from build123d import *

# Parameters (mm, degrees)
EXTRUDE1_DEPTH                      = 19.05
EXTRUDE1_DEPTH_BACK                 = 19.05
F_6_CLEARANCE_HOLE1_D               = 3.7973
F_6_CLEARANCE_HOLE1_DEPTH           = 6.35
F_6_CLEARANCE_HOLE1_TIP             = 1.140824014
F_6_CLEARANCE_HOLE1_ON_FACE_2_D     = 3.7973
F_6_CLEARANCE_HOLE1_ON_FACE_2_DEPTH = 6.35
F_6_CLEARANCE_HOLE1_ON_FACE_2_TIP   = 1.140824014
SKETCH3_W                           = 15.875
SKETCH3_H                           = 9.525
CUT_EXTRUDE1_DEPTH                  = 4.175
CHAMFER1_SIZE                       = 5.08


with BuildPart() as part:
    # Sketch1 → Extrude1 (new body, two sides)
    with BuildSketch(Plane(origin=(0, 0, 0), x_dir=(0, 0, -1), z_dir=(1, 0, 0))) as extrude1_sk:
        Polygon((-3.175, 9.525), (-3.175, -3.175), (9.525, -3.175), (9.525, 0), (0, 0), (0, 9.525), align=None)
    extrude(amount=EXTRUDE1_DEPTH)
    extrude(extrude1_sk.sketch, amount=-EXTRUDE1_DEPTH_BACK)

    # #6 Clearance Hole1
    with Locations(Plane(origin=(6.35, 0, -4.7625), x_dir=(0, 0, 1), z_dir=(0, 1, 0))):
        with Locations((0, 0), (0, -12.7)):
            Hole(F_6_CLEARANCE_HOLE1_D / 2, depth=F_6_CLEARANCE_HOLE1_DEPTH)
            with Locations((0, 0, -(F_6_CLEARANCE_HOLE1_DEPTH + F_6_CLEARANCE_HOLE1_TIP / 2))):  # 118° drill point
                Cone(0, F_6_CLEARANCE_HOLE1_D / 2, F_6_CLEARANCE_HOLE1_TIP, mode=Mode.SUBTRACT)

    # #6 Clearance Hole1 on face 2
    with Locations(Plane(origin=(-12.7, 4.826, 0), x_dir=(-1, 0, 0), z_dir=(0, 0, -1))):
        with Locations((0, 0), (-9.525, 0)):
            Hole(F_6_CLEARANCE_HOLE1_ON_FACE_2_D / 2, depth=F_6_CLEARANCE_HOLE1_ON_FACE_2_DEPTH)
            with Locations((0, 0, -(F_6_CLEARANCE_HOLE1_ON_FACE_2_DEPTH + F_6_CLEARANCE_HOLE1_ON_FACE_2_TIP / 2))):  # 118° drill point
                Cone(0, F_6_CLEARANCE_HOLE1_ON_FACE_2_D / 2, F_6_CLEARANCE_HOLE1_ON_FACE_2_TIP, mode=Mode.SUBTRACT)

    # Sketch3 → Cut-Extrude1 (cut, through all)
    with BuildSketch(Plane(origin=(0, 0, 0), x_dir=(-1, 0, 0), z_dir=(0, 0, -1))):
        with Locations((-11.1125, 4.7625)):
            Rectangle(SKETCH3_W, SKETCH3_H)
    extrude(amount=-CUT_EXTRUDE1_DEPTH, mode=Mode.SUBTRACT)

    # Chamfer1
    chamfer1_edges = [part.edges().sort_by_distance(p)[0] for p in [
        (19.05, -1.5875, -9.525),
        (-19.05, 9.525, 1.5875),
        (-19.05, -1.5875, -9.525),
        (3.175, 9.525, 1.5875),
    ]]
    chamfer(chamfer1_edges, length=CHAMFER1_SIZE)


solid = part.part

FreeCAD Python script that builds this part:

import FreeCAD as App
import Part
import Sketcher
Q = App.Units.Quantity


def edges_at(feature, points):
    """Names of the edges that pass closest to the given points."""
    edges = feature.Shape.Edges
    near = lambda p: min(range(len(edges)), key=lambda i: edges[i].distToShape(Part.Vertex(*p))[0])
    return sorted({f"Edge{near(p) + 1}" for p in points})


def add_polygon(sketch, points):
    """Adds a closed chain of lines whose ends are joined by coincident constraints."""
    first, n = sketch.GeometryCount, len(points)
    for a, b in zip(points, points[1:] + points[:1]):
        sketch.addGeometry(Part.LineSegment(App.Vector(*a, 0), App.Vector(*b, 0)), False)
    for i in range(n):
        sketch.addConstraint(Sketcher.Constraint("Coincident", first + i, 2, first + (i + 1) % n, 1))

doc = App.newDocument("Part")
body = doc.addObject("PartDesign::Body", "Body")

sketch1 = body.newObject("Sketcher::SketchObject", "Sketch")
sketch1.AttachmentSupport = (doc.getObject("YZ_Plane"), [""])
sketch1.MapMode = "FlatFace"
add_polygon(sketch1, [(9.5, 3.2), (-3.2, 3.2), (-3.2, -9.5), (0, -9.5), (0, 0), (9.5, 0)])
sketch1.addConstraint(Sketcher.Constraint("Horizontal", 0))
sketch1.addConstraint(Sketcher.Constraint("Vertical", 1))
sketch1.addConstraint(Sketcher.Constraint("Horizontal", 2))
sketch1.addConstraint(Sketcher.Constraint("Vertical", 3))
sketch1.addConstraint(Sketcher.Constraint("Horizontal", 4))
sketch1.addConstraint(Sketcher.Constraint("Vertical", 5))
sketch1.addConstraint(Sketcher.Constraint("Coincident", 3, 2, -1, 1))
sketch1.addConstraint(Sketcher.Constraint("Equal", 0, 1))
sketch1.addConstraint(Sketcher.Constraint("Equal", 4, 3))
sketch1.addConstraint(Sketcher.Constraint("DistanceX", 0, 2, 0, 1, Q("0.5 in")))
sketch1.addConstraint(Sketcher.Constraint("DistanceX", 2, 1, 2, 2, Q("0.125 in")))
pad1 = body.newObject("PartDesign::Pad", "Pad")
pad1.Profile = sketch1
pad1.Type = "TwoLengths"
pad1.Length = Q("0.75 in")
pad1.Length2 = Q("0.75 in")

sketch2 = body.newObject("Sketcher::SketchObject", "Sketch001")
sketch2.AttachmentSupport = (doc.getObject("XZ_Plane"), [""])
sketch2.MapMode = "FlatFace"
sketch2.addGeometry(Part.Circle(App.Vector(6.3, -4.8, 0), App.Vector(0, 0, 1), 1.9), False)
sketch2.addGeometry(Part.Circle(App.Vector(-6.3, -4.8, 0), App.Vector(0, 0, 1), 1.9), False)
sketch2.addConstraint(Sketcher.Constraint("Equal", 0, 1))
sketch2.addConstraint(Sketcher.Constraint("Symmetric", 0, 3, 1, 3, -2))
sketch2.addConstraint(Sketcher.Constraint("Diameter", 0, Q("0.1495 in")))
sketch2.addConstraint(Sketcher.Constraint("DistanceX", 1, 3, 0, 3, Q("0.5 in")))
sketch2.addConstraint(Sketcher.Constraint("DistanceY", 0, 3, -1, 1, Q("0.1875 in")))
doc.recompute()
hole = body.newObject("PartDesign::Hole", "Hole")
hole.Profile = sketch2
hole.ThreadType = "None"
hole.Diameter = Q("0.1495 in")
hole.DepthType = "Dimension"
hole.Depth = Q("0.25 in")
hole.DrillPoint = "Angled"
hole.DrillPointAngle = 118
hole.Reversed = True

sketch3 = body.newObject("Sketcher::SketchObject", "Sketch002")
sketch3.AttachmentSupport = (doc.getObject("XY_Plane"), [""])
sketch3.MapMode = "FlatFace"
sketch3.addGeometry(Part.Circle(App.Vector(-12.7, 4.8, 0), App.Vector(0, 0, 1), 1.9), False)
sketch3.addGeometry(Part.Circle(App.Vector(-3.2, 4.8, 0), App.Vector(0, 0, 1), 1.9), False)
sketch3.addConstraint(Sketcher.Constraint("Equal", 0, 1))
sketch3.addConstraint(Sketcher.Constraint("Horizontal", 0, 3, 1, 3))
sketch3.addConstraint(Sketcher.Constraint("Diameter", 0, Q("0.1495 in")))
sketch3.addConstraint(Sketcher.Constraint("DistanceX", 0, 3, -1, 1, Q("0.5 in")))
sketch3.addConstraint(Sketcher.Constraint("DistanceY", -1, 1, 0, 3, Q("0.19 in")))
sketch3.addConstraint(Sketcher.Constraint("DistanceX", 1, 3, -1, 1, Q("0.125 in")))
doc.recompute()
hole2 = body.newObject("PartDesign::Hole", "Hole001")
hole2.Profile = sketch3
hole2.ThreadType = "None"
hole2.Diameter = Q("0.1495 in")
hole2.DepthType = "Dimension"
hole2.Depth = Q("0.25 in")
hole2.DrillPoint = "Angled"
hole2.DrillPointAngle = 118
hole2.Reversed = True

sketch4 = body.newObject("Sketcher::SketchObject", "Sketch003")
sketch4.AttachmentSupport = (doc.getObject("XY_Plane"), [""])
sketch4.MapMode = "FlatFace"
add_polygon(sketch4, [(19, 10), (19, 0), (3, 0), (3, 10)])
sketch4.addConstraint(Sketcher.Constraint("Vertical", 0))
sketch4.addConstraint(Sketcher.Constraint("Horizontal", 1))
sketch4.addConstraint(Sketcher.Constraint("Vertical", 2))
sketch4.addConstraint(Sketcher.Constraint("Horizontal", 3))
sketch4.addConstraint(Sketcher.Constraint("PointOnObject", 0, 2, -1))
sketch4.addConstraint(Sketcher.Constraint("DistanceX", 1, 2, 1, 1, Q("0.625 in")))
sketch4.addConstraint(Sketcher.Constraint("DistanceY", 0, 2, 0, 1, Q("0.375 in")))
sketch4.addConstraint(Sketcher.Constraint("DistanceX", -1, 1, 0, 2, Q("0.75 in")))
pocket1 = body.newObject("PartDesign::Pocket", "Pocket")
pocket1.Profile = sketch4
pocket1.Type = "ThroughAll"
pocket1.Reversed = True
doc.recompute()

chamfer = body.newObject("PartDesign::Chamfer", "Chamfer")
chamfer.Base = (pocket1, edges_at(pocket1, [
    (19.05, -1.587, -9.525),
    (-19.05, 9.525, 1.587),
    (-19.05, -1.587, -9.525),
    (3.175, 9.525, 1.587),
]))
chamfer.Size = Q("0.2 in")

doc.recompute()
